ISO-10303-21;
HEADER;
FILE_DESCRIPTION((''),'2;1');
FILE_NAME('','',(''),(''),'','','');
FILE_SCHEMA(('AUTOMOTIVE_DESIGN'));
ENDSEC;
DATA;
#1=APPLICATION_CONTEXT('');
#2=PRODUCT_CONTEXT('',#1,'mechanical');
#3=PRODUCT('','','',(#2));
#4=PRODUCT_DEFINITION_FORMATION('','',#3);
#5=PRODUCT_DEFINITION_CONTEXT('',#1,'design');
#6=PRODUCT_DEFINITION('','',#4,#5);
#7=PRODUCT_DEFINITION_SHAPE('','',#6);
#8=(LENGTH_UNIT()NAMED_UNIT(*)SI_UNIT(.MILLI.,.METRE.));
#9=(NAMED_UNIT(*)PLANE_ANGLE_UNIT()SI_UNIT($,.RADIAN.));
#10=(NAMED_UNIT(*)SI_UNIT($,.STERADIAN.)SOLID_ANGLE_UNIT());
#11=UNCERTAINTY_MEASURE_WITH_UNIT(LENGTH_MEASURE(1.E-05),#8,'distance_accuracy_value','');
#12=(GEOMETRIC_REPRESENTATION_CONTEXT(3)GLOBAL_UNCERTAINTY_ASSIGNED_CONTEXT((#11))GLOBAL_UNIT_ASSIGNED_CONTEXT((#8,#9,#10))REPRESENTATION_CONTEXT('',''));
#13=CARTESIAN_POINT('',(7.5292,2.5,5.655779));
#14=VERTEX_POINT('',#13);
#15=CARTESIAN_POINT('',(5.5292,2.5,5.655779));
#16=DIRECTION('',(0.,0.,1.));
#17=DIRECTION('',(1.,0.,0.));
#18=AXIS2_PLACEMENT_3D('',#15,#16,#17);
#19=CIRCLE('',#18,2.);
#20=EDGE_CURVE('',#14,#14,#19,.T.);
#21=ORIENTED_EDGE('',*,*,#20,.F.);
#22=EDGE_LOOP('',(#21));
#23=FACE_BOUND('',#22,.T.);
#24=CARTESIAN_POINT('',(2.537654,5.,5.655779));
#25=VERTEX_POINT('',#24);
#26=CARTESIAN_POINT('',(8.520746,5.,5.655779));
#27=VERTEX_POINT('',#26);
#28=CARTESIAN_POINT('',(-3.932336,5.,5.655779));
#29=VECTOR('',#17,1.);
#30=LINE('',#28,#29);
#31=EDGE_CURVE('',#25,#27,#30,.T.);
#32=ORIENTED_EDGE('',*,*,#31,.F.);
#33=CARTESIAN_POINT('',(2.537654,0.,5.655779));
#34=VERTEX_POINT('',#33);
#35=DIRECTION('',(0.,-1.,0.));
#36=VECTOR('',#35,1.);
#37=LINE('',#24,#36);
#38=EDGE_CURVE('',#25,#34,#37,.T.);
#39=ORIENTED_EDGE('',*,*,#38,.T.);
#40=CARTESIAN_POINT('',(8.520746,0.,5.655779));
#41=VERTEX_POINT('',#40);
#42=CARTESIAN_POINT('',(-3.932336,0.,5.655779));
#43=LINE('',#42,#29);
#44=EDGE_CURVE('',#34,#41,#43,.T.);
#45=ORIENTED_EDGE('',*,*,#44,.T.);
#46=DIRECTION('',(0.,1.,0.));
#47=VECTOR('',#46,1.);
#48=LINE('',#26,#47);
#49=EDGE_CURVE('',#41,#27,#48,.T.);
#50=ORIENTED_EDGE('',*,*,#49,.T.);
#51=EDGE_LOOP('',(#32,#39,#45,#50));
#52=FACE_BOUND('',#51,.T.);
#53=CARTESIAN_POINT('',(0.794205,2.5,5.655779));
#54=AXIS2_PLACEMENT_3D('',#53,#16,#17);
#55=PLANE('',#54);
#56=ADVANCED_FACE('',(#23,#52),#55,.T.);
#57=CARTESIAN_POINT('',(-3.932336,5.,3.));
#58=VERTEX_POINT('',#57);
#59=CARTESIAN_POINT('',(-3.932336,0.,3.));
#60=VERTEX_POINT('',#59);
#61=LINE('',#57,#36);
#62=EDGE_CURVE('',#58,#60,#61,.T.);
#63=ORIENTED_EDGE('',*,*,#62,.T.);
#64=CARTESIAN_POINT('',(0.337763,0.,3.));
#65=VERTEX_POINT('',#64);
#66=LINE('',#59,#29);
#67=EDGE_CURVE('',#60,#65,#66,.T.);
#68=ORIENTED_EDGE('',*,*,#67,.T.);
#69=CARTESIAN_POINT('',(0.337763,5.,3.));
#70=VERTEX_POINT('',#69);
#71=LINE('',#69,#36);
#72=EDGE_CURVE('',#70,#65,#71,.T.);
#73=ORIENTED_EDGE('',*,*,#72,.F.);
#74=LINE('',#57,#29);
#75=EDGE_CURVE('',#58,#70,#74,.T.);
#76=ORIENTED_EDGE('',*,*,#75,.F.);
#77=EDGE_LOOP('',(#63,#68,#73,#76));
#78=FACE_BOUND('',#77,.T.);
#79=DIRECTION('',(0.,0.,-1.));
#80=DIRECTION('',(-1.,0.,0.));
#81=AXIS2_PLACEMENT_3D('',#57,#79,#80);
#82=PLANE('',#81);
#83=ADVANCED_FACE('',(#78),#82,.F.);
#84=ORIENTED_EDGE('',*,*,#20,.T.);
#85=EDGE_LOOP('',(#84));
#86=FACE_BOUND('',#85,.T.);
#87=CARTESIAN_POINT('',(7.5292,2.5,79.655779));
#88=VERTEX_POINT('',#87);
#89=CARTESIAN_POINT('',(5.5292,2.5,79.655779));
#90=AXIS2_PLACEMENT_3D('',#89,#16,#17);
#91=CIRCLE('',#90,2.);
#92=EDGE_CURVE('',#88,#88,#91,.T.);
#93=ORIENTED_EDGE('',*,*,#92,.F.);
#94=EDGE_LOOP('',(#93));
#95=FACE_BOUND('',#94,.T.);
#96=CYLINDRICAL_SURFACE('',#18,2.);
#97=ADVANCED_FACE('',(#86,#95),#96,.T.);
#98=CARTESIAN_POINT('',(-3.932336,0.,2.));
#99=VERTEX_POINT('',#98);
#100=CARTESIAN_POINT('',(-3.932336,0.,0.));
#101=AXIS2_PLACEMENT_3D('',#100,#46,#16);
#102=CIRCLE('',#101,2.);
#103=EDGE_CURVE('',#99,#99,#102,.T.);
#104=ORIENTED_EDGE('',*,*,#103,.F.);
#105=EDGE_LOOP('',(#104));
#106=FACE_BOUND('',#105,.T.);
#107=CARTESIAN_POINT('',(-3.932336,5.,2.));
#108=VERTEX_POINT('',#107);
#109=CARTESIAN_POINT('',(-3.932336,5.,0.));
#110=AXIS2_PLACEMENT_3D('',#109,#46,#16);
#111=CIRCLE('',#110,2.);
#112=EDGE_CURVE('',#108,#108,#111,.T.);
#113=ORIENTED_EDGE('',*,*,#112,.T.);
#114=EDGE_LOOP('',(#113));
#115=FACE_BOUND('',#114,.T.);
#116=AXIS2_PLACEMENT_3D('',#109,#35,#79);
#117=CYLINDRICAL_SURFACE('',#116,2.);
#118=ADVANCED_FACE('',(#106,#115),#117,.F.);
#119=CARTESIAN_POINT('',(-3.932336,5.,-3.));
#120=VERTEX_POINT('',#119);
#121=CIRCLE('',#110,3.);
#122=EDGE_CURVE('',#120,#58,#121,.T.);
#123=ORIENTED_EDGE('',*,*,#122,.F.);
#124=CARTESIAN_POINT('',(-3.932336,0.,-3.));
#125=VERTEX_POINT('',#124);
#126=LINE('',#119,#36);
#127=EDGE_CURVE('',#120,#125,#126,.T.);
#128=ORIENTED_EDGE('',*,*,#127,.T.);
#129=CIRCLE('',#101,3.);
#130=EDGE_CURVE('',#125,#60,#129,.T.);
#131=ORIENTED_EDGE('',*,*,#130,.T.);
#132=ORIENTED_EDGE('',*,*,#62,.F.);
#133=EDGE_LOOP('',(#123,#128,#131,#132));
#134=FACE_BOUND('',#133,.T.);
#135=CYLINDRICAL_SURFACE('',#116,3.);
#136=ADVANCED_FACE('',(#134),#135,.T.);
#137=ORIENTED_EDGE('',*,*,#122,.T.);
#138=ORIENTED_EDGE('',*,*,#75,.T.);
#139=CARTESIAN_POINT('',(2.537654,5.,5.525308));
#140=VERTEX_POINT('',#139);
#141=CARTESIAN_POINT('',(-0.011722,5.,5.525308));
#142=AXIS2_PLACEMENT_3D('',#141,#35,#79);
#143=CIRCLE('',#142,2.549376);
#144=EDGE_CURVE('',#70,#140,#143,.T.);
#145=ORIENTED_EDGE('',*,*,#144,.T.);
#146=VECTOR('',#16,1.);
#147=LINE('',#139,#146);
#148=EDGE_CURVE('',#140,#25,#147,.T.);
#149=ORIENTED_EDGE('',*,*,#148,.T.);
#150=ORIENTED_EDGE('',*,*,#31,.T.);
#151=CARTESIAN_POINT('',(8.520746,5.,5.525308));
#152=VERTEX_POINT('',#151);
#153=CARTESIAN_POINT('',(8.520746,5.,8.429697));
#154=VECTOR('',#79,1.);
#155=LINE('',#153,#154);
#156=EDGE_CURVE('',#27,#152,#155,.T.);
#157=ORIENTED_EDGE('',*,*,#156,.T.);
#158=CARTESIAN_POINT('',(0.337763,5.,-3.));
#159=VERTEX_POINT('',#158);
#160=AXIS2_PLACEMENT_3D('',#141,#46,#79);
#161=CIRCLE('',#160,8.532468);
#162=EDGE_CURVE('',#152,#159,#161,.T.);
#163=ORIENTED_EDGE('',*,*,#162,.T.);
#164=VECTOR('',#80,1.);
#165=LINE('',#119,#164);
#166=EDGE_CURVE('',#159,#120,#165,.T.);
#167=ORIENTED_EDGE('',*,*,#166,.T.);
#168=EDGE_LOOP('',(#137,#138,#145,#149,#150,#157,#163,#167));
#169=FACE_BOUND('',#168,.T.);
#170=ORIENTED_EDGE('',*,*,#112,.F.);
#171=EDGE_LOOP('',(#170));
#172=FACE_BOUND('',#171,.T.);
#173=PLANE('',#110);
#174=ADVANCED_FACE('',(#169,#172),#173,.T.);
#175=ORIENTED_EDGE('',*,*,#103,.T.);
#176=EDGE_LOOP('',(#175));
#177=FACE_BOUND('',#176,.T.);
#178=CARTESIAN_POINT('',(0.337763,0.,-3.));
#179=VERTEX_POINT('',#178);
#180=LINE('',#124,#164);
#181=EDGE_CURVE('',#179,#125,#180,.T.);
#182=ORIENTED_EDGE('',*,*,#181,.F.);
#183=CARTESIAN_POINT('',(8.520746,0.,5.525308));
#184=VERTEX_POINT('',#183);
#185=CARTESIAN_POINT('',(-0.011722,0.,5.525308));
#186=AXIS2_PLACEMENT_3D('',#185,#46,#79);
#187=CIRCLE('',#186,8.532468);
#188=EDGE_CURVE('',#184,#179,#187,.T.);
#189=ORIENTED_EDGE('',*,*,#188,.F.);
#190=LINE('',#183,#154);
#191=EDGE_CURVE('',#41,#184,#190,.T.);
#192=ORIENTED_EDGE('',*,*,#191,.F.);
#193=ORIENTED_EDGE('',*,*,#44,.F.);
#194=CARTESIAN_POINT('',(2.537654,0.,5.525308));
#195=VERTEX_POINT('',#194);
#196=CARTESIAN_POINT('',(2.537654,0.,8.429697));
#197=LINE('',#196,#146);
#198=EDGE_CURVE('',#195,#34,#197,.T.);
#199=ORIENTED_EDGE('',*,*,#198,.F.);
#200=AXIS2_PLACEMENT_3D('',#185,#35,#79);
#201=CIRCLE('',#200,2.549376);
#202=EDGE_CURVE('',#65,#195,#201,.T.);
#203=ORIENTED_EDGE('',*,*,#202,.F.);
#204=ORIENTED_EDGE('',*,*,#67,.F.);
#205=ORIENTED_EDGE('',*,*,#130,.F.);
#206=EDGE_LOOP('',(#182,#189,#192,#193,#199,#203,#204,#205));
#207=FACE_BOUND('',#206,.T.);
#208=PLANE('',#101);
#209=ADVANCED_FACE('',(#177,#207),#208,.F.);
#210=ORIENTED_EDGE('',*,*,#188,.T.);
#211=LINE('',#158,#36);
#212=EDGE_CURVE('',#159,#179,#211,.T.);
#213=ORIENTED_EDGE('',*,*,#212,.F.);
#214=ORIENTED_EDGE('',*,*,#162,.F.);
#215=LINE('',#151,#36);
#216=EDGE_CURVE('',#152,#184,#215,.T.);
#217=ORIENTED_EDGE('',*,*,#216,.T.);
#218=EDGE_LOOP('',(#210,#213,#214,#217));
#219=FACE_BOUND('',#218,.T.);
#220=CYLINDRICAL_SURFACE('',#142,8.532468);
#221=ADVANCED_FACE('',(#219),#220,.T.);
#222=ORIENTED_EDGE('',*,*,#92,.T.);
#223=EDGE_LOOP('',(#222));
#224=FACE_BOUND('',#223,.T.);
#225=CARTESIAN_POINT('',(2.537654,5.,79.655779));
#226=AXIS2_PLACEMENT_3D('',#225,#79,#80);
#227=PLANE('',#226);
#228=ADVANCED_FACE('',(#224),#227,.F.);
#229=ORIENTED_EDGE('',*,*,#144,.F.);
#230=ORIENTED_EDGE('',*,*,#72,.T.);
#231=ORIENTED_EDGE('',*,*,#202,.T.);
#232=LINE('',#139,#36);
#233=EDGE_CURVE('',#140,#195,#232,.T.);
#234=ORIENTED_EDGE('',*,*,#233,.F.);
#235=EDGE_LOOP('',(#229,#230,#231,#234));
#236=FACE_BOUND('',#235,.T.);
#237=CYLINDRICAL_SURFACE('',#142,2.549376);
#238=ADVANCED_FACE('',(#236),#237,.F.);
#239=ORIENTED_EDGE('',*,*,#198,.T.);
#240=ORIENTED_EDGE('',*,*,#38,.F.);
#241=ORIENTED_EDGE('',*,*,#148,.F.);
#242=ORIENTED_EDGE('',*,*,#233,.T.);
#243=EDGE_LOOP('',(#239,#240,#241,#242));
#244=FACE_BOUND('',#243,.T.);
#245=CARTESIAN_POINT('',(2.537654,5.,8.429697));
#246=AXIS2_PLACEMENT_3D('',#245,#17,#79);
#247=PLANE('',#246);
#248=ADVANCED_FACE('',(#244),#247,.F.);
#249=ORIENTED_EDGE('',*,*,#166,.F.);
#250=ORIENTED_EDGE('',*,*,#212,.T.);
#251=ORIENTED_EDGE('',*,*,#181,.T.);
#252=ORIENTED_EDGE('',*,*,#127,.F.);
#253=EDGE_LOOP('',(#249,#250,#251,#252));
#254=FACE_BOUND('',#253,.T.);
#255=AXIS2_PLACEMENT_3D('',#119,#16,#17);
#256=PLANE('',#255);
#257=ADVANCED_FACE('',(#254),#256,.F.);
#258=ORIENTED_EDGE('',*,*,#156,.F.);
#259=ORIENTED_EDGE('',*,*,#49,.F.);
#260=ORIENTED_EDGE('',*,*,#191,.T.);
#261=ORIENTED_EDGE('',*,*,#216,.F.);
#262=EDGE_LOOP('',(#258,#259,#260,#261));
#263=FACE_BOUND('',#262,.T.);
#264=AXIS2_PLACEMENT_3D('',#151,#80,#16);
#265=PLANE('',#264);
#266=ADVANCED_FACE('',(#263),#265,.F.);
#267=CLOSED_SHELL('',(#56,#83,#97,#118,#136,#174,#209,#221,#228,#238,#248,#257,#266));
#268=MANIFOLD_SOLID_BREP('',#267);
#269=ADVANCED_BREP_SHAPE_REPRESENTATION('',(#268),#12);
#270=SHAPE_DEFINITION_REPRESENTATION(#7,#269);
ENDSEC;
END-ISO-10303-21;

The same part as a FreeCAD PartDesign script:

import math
import FreeCAD as App
import Part
import Sketcher

doc = App.newDocument("Part")
params = doc.addObject("Spreadsheet::Sheet", "Params")
for row, (alias, value) in enumerate([
    ("sketch1_diameter", "4 mm"),
    ("sketch1_radius", "3 mm"),
    ("pad1_length", "5 mm"),
    ("sketch2_height", "6 mm"),
    ("pad2_length", "5 mm"),
    ("sketch3_diameter", "4 mm"),
    ("pocket1_length", "74 mm"),
], start=1):
    params.set(f"A{row}", alias)
    params.set(f"B{row}", "=" + value)
    params.setAlias(f"B{row}", alias)

body = doc.addObject("PartDesign::Body", "Body")

sketch1 = body.newObject("Sketcher::SketchObject", "Sketch")
sketch1.AttachmentSupport = (doc.getObject("XZ_Plane"), [""])
sketch1.MapMode = "FlatFace"
sketch1.addGeometry([
    Part.LineSegment(App.Vector(0.337763, -3, 0), App.Vector(-3.932336, -3, 0)),
    Part.ArcOfCircle(Part.Circle(App.Vector(-3.932336, 0, 0), App.Vector(0, 0, 1), 3), math.radians(90), math.radians(270)),
    Part.LineSegment(App.Vector(-3.932336, 3, 0), App.Vector(0.337763, 3, 0)),
    Part.LineSegment(App.Vector(0.337763, 3, 0), App.Vector(0.337763, -3, 0)),
    Part.Circle(App.Vector(-3.932336, 0, 0), App.Vector(0, 0, 1), 2),
], False)
sketch1.addConstraint([
    Sketcher.Constraint("Tangent", 0, 2, 1, 2),
    Sketcher.Constraint("Tangent", 1, 1, 2, 1),
    Sketcher.Constraint("Coincident", 2, 2, 3, 1),
    Sketcher.Constraint("Coincident", 3, 2, 0, 1),
    Sketcher.Constraint("Horizontal", 0),
    Sketcher.Constraint("Horizontal", 2),
    Sketcher.Constraint("Vertical", 3),
    Sketcher.Constraint("Coincident", 4, 3, 1, 3),
    Sketcher.Constraint("PointOnObject", 1, 3, -1),
    Sketcher.Constraint("Diameter", 4, 4.0),
    Sketcher.Constraint("Radius", 1, 3.0),
    Sketcher.Constraint("DistanceX", 0, 2, 0, 1, 4.270099),
    Sketcher.Constraint("DistanceX", 1, 3, -1, 1, 3.932336),
])
sketch1.setExpression("Constraints[9]", "Params.sketch1_diameter")
sketch1.setExpression("Constraints[10]", "Params.sketch1_radius")
pad1 = body.newObject("PartDesign::Pad", "Pad")
pad1.Profile = sketch1
pad1.setExpression("Length", "Params.pad1_length")
pad1.Reversed = True

sketch2 = body.newObject("Sketcher::SketchObject", "Sketch001")
sketch2.AttachmentSupport = (doc.getObject("XZ_Plane"), [""])
sketch2.MapMode = "FlatFace"
sketch2.addGeometry([
    Part.LineSegment(App.Vector(2.537654, 79.655779, 0), App.Vector(8.520746, 79.655779, 0)),
    Part.LineSegment(App.Vector(8.520746, 79.655779, 0), App.Vector(8.520746, 5.525308, 0)),
    Part.ArcOfCircle(Part.Circle(App.Vector(-0.011722, 5.525308, 0), App.Vector(0, 0, 1), 8.532468), math.radians(-87.652542), math.radians(0)),
    Part.LineSegment(App.Vector(0.337763, -3, 0), App.Vector(0.337763, 3, 0)),
    Part.ArcOfCircle(Part.Circle(App.Vector(-0.011722, 5.525308, 0), App.Vector(0, 0, 1), 2.549376), math.radians(-82.120716), math.radians(0)),
    Part.LineSegment(App.Vector(2.537654, 5.525308, 0), App.Vector(2.537654, 79.655779, 0)),
], False)
sketch2.addConstraint([
    Sketcher.Constraint("Coincident", 0, 2, 1, 1),
    Sketcher.Constraint("Tangent", 1, 2, 2, 2),
    Sketcher.Constraint("Coincident", 2, 1, 3, 1),
    Sketcher.Constraint("Coincident", 3, 2, 4, 1),
    Sketcher.Constraint("Tangent", 4, 2, 5, 1),
    Sketcher.Constraint("Coincident", 5, 2, 0, 1),
    Sketcher.Constraint("Horizontal", 0),
    Sketcher.Constraint("Vertical", 1),
    Sketcher.Constraint("Vertical", 3),
    Sketcher.Constraint("Vertical", 5),
    Sketcher.Constraint("Coincident", 4, 3, 2, 3),
    Sketcher.Constraint("DistanceY", 3, 1, 3, 2, 6.0),
    Sketcher.Constraint("DistanceY", 2, 1, -1, 1, 3.0),
    Sketcher.Constraint("Radius", 2, 8.532468),
    Sketcher.Constraint("Radius", 4, 2.549376),
    Sketcher.Constraint("DistanceY", 1, 2, 1, 1, 74.130471),
    Sketcher.Constraint("DistanceX", 2, 3, -1, 1, 0.011722),
])
sketch2.setExpression("Constraints[11]", "Params.sketch2_height")
pad2 = body.newObject("PartDesign::Pad", "Pad001")
pad2.Profile = sketch2
pad2.setExpression("Length", "Params.pad2_length")
pad2.Reversed = True

sketch3 = body.newObject("Sketcher::SketchObject", "Sketch002")
sketch3.AttachmentSupport = (doc.getObject("XY_Plane"), [""])
sketch3.MapMode = "FlatFace"
sketch3.AttachmentOffset = App.Placement(App.Vector(0, 0, 79.655779), App.Rotation())
sketch3.addGeometry([
    Part.LineSegment(App.Vector(-16.356, 14.424, 0), App.Vector(-16.356, -9.424, 0)),
    Part.LineSegment(App.Vector(-16.356, -9.424, 0), App.Vector(17.945, -9.424, 0)),
    Part.LineSegment(App.Vector(17.945, -9.424, 0), App.Vector(17.945, 14.424, 0)),
    Part.LineSegment(App.Vector(17.945, 14.424, 0), App.Vector(-16.356, 14.424, 0)),
    Part.Circle(App.Vector(5.5292, 2.5, 0), App.Vector(0, 0, 1), 2),
], False)
sketch3.addConstraint([
    Sketcher.Constraint("Coincident", 0, 2, 1, 1),
    Sketcher.Constraint("Coincident", 1, 2, 2, 1),
    Sketcher.Constraint("Coincident", 2, 2, 3, 1),
    Sketcher.Constraint("Coincident", 3, 2, 0, 1),
    Sketcher.Constraint("Vertical", 0),
    Sketcher.Constraint("Horizontal", 1),
    Sketcher.Constraint("Vertical", 2),
    Sketcher.Constraint("Horizontal", 3),
    Sketcher.Constraint("Diameter", 4, 4.0),
    Sketcher.Constraint("DistanceY", -1, 1, 4, 3, 2.5),
    Sketcher.Constraint("DistanceX", 1, 1, 1, 2, 34.301),
    Sketcher.Constraint("DistanceY", 0, 2, 0, 1, 23.848),
    Sketcher.Constraint("DistanceX", 0, 2, -1, 1, 16.356),
    Sketcher.Constraint("DistanceY", 0, 2, -1, 1, 9.424),
    Sketcher.Constraint("DistanceX", -1, 1, 4, 3, 5.5292),
])
sketch3.setExpression("Constraints[8]", "Params.sketch3_diameter")
pocket1 = body.newObject("PartDesign::Pocket", "Pocket")
pocket1.Profile = sketch3
pocket1.setExpression("Length", "Params.pocket1_length")

doc.recompute()
